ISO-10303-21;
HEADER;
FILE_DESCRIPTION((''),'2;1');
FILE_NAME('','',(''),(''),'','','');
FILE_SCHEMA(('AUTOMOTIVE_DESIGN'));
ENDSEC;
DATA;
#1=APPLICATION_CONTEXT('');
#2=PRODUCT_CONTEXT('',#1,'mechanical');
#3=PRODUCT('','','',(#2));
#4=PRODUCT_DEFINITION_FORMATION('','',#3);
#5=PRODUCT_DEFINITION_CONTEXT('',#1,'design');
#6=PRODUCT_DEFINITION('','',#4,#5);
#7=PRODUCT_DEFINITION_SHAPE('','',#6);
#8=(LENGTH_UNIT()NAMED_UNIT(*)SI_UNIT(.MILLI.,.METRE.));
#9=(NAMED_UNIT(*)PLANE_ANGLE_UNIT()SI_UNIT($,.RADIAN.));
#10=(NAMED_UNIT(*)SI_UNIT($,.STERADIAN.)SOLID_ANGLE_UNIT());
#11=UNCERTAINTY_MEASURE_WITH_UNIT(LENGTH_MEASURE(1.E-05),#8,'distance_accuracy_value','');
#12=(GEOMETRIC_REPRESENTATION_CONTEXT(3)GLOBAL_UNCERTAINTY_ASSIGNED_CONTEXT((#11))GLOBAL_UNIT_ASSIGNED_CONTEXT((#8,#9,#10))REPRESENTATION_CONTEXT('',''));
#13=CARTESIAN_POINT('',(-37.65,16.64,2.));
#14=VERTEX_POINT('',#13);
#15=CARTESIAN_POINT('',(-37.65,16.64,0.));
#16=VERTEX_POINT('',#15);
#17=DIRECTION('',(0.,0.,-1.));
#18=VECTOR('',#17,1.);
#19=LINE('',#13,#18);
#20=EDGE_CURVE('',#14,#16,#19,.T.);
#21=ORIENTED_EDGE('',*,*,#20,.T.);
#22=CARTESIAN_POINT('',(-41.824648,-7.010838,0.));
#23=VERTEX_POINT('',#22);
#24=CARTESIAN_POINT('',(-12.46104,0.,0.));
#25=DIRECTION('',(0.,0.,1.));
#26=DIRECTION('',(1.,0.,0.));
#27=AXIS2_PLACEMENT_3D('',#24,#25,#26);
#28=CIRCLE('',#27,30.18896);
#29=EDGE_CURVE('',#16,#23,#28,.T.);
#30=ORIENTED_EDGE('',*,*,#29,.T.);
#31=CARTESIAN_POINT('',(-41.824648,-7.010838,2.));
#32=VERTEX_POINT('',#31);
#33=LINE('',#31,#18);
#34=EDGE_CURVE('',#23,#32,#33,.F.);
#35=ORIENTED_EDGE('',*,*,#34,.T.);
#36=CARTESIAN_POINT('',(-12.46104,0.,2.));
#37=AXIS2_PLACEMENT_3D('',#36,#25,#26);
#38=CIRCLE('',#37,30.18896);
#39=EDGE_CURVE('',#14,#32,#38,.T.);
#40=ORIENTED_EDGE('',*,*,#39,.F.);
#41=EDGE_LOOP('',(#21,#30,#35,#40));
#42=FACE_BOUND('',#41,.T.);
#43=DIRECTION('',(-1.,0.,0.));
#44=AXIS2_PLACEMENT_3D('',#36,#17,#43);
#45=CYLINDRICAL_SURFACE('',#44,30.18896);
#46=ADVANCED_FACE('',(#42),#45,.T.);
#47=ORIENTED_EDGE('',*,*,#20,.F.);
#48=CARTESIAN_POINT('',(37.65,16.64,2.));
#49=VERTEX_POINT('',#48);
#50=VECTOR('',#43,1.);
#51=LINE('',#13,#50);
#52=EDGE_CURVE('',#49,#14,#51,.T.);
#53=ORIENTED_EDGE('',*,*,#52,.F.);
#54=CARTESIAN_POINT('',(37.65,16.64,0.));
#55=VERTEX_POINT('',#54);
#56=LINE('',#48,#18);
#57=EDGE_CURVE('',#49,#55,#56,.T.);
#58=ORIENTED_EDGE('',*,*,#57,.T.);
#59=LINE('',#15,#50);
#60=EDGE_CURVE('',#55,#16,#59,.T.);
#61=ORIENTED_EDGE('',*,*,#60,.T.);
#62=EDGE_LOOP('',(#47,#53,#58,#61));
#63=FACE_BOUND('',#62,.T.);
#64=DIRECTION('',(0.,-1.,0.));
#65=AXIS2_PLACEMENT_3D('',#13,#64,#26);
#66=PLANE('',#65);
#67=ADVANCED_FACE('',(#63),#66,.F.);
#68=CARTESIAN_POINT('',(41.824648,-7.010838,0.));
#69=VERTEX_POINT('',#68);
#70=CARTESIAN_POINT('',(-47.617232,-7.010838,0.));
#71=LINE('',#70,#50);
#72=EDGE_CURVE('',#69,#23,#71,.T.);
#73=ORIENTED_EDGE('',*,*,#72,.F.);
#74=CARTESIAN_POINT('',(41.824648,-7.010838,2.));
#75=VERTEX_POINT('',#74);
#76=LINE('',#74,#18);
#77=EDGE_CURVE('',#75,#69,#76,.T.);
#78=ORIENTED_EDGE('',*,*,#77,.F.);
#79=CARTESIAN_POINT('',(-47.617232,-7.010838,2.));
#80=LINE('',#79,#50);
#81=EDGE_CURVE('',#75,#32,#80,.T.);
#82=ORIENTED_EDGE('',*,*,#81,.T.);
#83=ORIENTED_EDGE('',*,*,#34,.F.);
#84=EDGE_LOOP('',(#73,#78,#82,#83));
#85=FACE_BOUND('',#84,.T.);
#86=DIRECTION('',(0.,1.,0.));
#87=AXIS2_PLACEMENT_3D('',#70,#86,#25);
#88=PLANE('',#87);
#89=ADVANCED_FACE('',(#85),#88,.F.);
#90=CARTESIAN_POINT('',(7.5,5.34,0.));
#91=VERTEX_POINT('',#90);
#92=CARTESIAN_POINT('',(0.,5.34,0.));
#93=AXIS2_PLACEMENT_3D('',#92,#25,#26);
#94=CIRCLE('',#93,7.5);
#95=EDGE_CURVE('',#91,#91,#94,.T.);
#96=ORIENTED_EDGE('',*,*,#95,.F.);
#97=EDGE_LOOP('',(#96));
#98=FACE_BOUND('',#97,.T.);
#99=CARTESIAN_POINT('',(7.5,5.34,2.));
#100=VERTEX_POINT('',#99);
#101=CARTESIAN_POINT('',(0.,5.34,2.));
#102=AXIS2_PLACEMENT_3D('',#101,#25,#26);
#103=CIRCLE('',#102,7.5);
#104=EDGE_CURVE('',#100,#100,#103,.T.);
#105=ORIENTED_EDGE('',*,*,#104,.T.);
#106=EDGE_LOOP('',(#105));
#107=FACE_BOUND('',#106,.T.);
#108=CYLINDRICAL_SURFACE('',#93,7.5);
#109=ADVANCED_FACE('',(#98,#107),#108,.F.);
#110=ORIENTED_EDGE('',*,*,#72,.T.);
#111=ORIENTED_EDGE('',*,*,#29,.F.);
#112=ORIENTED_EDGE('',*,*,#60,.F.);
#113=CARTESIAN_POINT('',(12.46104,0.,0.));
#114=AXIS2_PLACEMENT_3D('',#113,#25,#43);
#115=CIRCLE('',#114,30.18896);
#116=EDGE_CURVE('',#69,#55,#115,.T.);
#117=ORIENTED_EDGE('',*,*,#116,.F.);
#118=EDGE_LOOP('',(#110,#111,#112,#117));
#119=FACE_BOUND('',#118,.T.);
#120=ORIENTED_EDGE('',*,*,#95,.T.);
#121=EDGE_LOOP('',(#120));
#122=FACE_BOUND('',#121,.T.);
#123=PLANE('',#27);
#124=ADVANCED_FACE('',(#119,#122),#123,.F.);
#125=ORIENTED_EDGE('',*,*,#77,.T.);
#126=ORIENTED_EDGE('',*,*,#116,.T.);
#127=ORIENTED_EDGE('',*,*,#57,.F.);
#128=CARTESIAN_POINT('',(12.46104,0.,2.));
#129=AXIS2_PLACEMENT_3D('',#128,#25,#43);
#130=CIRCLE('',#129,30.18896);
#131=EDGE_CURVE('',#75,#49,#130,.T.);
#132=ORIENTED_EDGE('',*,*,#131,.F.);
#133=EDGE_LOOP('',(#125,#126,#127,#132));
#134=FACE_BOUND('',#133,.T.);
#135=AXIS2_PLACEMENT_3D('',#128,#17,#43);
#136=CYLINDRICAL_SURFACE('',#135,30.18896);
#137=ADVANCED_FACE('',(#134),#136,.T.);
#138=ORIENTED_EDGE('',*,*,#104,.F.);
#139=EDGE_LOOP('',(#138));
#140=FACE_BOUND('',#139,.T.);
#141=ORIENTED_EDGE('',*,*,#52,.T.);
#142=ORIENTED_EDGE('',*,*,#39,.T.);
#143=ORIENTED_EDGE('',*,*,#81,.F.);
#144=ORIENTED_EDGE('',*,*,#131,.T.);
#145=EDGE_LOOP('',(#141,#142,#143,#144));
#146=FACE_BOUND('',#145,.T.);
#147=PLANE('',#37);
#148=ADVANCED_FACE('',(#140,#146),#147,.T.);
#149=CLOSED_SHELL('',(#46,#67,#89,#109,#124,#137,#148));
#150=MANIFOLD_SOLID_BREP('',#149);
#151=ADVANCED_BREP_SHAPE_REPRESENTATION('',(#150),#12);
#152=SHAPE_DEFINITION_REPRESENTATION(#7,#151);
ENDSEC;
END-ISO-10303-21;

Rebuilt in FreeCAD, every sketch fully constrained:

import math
import FreeCAD as App
import Part
import Sketcher
from FreeCAD import Vector
Q = App.Units.Quantity

doc = App.newDocument("Part")
body = doc.addObject("PartDesign::Body", "Body")

# Sketch on XY plane
sketch1 = body.newObject("Sketcher::SketchObject", "Sketch")
sketch1.AttachmentSupport = (doc.getObject("XY_Plane"), [""])
sketch1.MapMode = "FlatFace"
sketch1.addGeometry(Part.LineSegment(Vector(38, 17, 0), Vector(-38, 17, 0)), False)
sketch1.addGeometry(Part.ArcOfCircle(Part.Circle(Vector(-12, 0, 0), Vector(0, 0, 1), 30), math.radians(147), math.radians(213)), False)
sketch1.addGeometry(Part.LineSegment(Vector(-38, -17, 0), Vector(38, -17, 0)), False)
sketch1.addGeometry(Part.ArcOfCircle(Part.Circle(Vector(12, 0, 0), Vector(0, 0, 1), 30), math.radians(-33), math.radians(33)), False)
sketch1.addConstraint(Sketcher.Constraint("Coincident", 0, 2, 1, 1))
sketch1.addConstraint(Sketcher.Constraint("Coincident", 1, 2, 2, 1))
sketch1.addConstraint(Sketcher.Constraint("Coincident", 2, 2, 3, 1))
sketch1.addConstraint(Sketcher.Constraint("Coincident", 3, 2, 0, 1))
sketch1.addConstraint(Sketcher.Constraint("Horizontal", 0))
sketch1.addConstraint(Sketcher.Constraint("Horizontal", 2))
sketch1.addConstraint(Sketcher.Constraint("Equal", 1, 3))
sketch1.addConstraint(Sketcher.Constraint("Symmetric", 1, 3, 3, 3, -1, 1))
sketch1.addConstraint(Sketcher.Constraint("Symmetric", 0, 2, 1, 2, -1))
sketch1.addConstraint(Sketcher.Constraint("DistanceX", 0, 2, 0, 1, Q("75.3 mm")))
sketch1.addConstraint(Sketcher.Constraint("DistanceY", -1, 1, 0, 2, Q("16.64 mm")))
sketch1.addConstraint(Sketcher.Constraint("Radius", 1, Q("30.18896 mm")))
pad1 = body.newObject("PartDesign::Pad", "Pad")
pad1.Profile = sketch1
pad1.Length = 2

# Sketch on XY plane
sketch2 = body.newObject("Sketcher::SketchObject", "Sketch001")
sketch2.AttachmentSupport = (doc.getObject("XY_Plane"), [""])
sketch2.MapMode = "FlatFace"
sketch2.AttachmentOffset = App.Placement(Vector(0, 0, 2), App.Rotation())
sketch2.addGeometry(Part.Circle(Vector(0, 5, 0), Vector(0, 0, 1), 8), False)
sketch2.addConstraint(Sketcher.Constraint("PointOnObject", 0, 3, -2))
sketch2.addConstraint(Sketcher.Constraint("Diameter", 0, Q("15 mm")))
sketch2.addConstraint(Sketcher.Constraint("DistanceY", -1, 1, 0, 3, Q("5.34 mm")))
pocket1 = body.newObject("PartDesign::Pocket", "Pocket")
pocket1.Profile = sketch2
pocket1.Length = 2

# Sketch on XY plane
sketch3 = body.newObject("Sketcher::SketchObject", "Sketch002")
sketch3.AttachmentSupport = (doc.getObject("XY_Plane"), [""])
sketch3.MapMode = "FlatFace"
sketch3.AttachmentOffset = App.Placement(Vector(0, 0, 2), App.Rotation())
sketch3.addGeometry(Part.LineSegment(Vector(-48, -7, 0), Vector(-48, -23, 0)), False)
sketch3.addGeometry(Part.LineSegment(Vector(-48, -23, 0), Vector(49, -23, 0)), False)
sketch3.addGeometry(Part.LineSegment(Vector(49, -23, 0), Vector(49, -7, 0)), False)
sketch3.addGeometry(Part.LineSegment(Vector(49, -7, 0), Vector(-48, -7, 0)), False)
sketch3.addConstraint(Sketcher.Constraint("Coincident", 0, 2, 1, 1))
sketch3.addConstraint(Sketcher.Constraint("Coincident", 1, 2, 2, 1))
sketch3.addConstraint(Sketcher.Constraint("Coincident", 2, 2, 3, 1))
sketch3.addConstraint(Sketcher.Constraint("Coincident", 3, 2, 0, 1))
sketch3.addConstraint(Sketcher.Constraint("Vertical", 0))
sketch3.addConstraint(Sketcher.Constraint("Horizontal", 1))
sketch3.addConstraint(Sketcher.Constraint("Vertical", 2))
sketch3.addConstraint(Sketcher.Constraint("Horizontal", 3))
sketch3.addConstraint(Sketcher.Constraint("DistanceY", 0, 2, -1, 1, Q("22.632301 mm")))
sketch3.addConstraint(Sketcher.Constraint("DistanceX", 1, 1, 1, 2, Q("96.175517 mm")))
sketch3.addConstraint(Sketcher.Constraint("DistanceY", 0, 2, 0, 1, Q("15.621464 mm")))
sketch3.addConstraint(Sketcher.Constraint("DistanceX", 0, 2, -1, 1, Q("47.617232 mm")))
pocket2 = body.newObject("PartDesign::Pocket", "Pocket001")
pocket2.Profile = sketch3
pocket2.Length = 2

doc.recompute()
